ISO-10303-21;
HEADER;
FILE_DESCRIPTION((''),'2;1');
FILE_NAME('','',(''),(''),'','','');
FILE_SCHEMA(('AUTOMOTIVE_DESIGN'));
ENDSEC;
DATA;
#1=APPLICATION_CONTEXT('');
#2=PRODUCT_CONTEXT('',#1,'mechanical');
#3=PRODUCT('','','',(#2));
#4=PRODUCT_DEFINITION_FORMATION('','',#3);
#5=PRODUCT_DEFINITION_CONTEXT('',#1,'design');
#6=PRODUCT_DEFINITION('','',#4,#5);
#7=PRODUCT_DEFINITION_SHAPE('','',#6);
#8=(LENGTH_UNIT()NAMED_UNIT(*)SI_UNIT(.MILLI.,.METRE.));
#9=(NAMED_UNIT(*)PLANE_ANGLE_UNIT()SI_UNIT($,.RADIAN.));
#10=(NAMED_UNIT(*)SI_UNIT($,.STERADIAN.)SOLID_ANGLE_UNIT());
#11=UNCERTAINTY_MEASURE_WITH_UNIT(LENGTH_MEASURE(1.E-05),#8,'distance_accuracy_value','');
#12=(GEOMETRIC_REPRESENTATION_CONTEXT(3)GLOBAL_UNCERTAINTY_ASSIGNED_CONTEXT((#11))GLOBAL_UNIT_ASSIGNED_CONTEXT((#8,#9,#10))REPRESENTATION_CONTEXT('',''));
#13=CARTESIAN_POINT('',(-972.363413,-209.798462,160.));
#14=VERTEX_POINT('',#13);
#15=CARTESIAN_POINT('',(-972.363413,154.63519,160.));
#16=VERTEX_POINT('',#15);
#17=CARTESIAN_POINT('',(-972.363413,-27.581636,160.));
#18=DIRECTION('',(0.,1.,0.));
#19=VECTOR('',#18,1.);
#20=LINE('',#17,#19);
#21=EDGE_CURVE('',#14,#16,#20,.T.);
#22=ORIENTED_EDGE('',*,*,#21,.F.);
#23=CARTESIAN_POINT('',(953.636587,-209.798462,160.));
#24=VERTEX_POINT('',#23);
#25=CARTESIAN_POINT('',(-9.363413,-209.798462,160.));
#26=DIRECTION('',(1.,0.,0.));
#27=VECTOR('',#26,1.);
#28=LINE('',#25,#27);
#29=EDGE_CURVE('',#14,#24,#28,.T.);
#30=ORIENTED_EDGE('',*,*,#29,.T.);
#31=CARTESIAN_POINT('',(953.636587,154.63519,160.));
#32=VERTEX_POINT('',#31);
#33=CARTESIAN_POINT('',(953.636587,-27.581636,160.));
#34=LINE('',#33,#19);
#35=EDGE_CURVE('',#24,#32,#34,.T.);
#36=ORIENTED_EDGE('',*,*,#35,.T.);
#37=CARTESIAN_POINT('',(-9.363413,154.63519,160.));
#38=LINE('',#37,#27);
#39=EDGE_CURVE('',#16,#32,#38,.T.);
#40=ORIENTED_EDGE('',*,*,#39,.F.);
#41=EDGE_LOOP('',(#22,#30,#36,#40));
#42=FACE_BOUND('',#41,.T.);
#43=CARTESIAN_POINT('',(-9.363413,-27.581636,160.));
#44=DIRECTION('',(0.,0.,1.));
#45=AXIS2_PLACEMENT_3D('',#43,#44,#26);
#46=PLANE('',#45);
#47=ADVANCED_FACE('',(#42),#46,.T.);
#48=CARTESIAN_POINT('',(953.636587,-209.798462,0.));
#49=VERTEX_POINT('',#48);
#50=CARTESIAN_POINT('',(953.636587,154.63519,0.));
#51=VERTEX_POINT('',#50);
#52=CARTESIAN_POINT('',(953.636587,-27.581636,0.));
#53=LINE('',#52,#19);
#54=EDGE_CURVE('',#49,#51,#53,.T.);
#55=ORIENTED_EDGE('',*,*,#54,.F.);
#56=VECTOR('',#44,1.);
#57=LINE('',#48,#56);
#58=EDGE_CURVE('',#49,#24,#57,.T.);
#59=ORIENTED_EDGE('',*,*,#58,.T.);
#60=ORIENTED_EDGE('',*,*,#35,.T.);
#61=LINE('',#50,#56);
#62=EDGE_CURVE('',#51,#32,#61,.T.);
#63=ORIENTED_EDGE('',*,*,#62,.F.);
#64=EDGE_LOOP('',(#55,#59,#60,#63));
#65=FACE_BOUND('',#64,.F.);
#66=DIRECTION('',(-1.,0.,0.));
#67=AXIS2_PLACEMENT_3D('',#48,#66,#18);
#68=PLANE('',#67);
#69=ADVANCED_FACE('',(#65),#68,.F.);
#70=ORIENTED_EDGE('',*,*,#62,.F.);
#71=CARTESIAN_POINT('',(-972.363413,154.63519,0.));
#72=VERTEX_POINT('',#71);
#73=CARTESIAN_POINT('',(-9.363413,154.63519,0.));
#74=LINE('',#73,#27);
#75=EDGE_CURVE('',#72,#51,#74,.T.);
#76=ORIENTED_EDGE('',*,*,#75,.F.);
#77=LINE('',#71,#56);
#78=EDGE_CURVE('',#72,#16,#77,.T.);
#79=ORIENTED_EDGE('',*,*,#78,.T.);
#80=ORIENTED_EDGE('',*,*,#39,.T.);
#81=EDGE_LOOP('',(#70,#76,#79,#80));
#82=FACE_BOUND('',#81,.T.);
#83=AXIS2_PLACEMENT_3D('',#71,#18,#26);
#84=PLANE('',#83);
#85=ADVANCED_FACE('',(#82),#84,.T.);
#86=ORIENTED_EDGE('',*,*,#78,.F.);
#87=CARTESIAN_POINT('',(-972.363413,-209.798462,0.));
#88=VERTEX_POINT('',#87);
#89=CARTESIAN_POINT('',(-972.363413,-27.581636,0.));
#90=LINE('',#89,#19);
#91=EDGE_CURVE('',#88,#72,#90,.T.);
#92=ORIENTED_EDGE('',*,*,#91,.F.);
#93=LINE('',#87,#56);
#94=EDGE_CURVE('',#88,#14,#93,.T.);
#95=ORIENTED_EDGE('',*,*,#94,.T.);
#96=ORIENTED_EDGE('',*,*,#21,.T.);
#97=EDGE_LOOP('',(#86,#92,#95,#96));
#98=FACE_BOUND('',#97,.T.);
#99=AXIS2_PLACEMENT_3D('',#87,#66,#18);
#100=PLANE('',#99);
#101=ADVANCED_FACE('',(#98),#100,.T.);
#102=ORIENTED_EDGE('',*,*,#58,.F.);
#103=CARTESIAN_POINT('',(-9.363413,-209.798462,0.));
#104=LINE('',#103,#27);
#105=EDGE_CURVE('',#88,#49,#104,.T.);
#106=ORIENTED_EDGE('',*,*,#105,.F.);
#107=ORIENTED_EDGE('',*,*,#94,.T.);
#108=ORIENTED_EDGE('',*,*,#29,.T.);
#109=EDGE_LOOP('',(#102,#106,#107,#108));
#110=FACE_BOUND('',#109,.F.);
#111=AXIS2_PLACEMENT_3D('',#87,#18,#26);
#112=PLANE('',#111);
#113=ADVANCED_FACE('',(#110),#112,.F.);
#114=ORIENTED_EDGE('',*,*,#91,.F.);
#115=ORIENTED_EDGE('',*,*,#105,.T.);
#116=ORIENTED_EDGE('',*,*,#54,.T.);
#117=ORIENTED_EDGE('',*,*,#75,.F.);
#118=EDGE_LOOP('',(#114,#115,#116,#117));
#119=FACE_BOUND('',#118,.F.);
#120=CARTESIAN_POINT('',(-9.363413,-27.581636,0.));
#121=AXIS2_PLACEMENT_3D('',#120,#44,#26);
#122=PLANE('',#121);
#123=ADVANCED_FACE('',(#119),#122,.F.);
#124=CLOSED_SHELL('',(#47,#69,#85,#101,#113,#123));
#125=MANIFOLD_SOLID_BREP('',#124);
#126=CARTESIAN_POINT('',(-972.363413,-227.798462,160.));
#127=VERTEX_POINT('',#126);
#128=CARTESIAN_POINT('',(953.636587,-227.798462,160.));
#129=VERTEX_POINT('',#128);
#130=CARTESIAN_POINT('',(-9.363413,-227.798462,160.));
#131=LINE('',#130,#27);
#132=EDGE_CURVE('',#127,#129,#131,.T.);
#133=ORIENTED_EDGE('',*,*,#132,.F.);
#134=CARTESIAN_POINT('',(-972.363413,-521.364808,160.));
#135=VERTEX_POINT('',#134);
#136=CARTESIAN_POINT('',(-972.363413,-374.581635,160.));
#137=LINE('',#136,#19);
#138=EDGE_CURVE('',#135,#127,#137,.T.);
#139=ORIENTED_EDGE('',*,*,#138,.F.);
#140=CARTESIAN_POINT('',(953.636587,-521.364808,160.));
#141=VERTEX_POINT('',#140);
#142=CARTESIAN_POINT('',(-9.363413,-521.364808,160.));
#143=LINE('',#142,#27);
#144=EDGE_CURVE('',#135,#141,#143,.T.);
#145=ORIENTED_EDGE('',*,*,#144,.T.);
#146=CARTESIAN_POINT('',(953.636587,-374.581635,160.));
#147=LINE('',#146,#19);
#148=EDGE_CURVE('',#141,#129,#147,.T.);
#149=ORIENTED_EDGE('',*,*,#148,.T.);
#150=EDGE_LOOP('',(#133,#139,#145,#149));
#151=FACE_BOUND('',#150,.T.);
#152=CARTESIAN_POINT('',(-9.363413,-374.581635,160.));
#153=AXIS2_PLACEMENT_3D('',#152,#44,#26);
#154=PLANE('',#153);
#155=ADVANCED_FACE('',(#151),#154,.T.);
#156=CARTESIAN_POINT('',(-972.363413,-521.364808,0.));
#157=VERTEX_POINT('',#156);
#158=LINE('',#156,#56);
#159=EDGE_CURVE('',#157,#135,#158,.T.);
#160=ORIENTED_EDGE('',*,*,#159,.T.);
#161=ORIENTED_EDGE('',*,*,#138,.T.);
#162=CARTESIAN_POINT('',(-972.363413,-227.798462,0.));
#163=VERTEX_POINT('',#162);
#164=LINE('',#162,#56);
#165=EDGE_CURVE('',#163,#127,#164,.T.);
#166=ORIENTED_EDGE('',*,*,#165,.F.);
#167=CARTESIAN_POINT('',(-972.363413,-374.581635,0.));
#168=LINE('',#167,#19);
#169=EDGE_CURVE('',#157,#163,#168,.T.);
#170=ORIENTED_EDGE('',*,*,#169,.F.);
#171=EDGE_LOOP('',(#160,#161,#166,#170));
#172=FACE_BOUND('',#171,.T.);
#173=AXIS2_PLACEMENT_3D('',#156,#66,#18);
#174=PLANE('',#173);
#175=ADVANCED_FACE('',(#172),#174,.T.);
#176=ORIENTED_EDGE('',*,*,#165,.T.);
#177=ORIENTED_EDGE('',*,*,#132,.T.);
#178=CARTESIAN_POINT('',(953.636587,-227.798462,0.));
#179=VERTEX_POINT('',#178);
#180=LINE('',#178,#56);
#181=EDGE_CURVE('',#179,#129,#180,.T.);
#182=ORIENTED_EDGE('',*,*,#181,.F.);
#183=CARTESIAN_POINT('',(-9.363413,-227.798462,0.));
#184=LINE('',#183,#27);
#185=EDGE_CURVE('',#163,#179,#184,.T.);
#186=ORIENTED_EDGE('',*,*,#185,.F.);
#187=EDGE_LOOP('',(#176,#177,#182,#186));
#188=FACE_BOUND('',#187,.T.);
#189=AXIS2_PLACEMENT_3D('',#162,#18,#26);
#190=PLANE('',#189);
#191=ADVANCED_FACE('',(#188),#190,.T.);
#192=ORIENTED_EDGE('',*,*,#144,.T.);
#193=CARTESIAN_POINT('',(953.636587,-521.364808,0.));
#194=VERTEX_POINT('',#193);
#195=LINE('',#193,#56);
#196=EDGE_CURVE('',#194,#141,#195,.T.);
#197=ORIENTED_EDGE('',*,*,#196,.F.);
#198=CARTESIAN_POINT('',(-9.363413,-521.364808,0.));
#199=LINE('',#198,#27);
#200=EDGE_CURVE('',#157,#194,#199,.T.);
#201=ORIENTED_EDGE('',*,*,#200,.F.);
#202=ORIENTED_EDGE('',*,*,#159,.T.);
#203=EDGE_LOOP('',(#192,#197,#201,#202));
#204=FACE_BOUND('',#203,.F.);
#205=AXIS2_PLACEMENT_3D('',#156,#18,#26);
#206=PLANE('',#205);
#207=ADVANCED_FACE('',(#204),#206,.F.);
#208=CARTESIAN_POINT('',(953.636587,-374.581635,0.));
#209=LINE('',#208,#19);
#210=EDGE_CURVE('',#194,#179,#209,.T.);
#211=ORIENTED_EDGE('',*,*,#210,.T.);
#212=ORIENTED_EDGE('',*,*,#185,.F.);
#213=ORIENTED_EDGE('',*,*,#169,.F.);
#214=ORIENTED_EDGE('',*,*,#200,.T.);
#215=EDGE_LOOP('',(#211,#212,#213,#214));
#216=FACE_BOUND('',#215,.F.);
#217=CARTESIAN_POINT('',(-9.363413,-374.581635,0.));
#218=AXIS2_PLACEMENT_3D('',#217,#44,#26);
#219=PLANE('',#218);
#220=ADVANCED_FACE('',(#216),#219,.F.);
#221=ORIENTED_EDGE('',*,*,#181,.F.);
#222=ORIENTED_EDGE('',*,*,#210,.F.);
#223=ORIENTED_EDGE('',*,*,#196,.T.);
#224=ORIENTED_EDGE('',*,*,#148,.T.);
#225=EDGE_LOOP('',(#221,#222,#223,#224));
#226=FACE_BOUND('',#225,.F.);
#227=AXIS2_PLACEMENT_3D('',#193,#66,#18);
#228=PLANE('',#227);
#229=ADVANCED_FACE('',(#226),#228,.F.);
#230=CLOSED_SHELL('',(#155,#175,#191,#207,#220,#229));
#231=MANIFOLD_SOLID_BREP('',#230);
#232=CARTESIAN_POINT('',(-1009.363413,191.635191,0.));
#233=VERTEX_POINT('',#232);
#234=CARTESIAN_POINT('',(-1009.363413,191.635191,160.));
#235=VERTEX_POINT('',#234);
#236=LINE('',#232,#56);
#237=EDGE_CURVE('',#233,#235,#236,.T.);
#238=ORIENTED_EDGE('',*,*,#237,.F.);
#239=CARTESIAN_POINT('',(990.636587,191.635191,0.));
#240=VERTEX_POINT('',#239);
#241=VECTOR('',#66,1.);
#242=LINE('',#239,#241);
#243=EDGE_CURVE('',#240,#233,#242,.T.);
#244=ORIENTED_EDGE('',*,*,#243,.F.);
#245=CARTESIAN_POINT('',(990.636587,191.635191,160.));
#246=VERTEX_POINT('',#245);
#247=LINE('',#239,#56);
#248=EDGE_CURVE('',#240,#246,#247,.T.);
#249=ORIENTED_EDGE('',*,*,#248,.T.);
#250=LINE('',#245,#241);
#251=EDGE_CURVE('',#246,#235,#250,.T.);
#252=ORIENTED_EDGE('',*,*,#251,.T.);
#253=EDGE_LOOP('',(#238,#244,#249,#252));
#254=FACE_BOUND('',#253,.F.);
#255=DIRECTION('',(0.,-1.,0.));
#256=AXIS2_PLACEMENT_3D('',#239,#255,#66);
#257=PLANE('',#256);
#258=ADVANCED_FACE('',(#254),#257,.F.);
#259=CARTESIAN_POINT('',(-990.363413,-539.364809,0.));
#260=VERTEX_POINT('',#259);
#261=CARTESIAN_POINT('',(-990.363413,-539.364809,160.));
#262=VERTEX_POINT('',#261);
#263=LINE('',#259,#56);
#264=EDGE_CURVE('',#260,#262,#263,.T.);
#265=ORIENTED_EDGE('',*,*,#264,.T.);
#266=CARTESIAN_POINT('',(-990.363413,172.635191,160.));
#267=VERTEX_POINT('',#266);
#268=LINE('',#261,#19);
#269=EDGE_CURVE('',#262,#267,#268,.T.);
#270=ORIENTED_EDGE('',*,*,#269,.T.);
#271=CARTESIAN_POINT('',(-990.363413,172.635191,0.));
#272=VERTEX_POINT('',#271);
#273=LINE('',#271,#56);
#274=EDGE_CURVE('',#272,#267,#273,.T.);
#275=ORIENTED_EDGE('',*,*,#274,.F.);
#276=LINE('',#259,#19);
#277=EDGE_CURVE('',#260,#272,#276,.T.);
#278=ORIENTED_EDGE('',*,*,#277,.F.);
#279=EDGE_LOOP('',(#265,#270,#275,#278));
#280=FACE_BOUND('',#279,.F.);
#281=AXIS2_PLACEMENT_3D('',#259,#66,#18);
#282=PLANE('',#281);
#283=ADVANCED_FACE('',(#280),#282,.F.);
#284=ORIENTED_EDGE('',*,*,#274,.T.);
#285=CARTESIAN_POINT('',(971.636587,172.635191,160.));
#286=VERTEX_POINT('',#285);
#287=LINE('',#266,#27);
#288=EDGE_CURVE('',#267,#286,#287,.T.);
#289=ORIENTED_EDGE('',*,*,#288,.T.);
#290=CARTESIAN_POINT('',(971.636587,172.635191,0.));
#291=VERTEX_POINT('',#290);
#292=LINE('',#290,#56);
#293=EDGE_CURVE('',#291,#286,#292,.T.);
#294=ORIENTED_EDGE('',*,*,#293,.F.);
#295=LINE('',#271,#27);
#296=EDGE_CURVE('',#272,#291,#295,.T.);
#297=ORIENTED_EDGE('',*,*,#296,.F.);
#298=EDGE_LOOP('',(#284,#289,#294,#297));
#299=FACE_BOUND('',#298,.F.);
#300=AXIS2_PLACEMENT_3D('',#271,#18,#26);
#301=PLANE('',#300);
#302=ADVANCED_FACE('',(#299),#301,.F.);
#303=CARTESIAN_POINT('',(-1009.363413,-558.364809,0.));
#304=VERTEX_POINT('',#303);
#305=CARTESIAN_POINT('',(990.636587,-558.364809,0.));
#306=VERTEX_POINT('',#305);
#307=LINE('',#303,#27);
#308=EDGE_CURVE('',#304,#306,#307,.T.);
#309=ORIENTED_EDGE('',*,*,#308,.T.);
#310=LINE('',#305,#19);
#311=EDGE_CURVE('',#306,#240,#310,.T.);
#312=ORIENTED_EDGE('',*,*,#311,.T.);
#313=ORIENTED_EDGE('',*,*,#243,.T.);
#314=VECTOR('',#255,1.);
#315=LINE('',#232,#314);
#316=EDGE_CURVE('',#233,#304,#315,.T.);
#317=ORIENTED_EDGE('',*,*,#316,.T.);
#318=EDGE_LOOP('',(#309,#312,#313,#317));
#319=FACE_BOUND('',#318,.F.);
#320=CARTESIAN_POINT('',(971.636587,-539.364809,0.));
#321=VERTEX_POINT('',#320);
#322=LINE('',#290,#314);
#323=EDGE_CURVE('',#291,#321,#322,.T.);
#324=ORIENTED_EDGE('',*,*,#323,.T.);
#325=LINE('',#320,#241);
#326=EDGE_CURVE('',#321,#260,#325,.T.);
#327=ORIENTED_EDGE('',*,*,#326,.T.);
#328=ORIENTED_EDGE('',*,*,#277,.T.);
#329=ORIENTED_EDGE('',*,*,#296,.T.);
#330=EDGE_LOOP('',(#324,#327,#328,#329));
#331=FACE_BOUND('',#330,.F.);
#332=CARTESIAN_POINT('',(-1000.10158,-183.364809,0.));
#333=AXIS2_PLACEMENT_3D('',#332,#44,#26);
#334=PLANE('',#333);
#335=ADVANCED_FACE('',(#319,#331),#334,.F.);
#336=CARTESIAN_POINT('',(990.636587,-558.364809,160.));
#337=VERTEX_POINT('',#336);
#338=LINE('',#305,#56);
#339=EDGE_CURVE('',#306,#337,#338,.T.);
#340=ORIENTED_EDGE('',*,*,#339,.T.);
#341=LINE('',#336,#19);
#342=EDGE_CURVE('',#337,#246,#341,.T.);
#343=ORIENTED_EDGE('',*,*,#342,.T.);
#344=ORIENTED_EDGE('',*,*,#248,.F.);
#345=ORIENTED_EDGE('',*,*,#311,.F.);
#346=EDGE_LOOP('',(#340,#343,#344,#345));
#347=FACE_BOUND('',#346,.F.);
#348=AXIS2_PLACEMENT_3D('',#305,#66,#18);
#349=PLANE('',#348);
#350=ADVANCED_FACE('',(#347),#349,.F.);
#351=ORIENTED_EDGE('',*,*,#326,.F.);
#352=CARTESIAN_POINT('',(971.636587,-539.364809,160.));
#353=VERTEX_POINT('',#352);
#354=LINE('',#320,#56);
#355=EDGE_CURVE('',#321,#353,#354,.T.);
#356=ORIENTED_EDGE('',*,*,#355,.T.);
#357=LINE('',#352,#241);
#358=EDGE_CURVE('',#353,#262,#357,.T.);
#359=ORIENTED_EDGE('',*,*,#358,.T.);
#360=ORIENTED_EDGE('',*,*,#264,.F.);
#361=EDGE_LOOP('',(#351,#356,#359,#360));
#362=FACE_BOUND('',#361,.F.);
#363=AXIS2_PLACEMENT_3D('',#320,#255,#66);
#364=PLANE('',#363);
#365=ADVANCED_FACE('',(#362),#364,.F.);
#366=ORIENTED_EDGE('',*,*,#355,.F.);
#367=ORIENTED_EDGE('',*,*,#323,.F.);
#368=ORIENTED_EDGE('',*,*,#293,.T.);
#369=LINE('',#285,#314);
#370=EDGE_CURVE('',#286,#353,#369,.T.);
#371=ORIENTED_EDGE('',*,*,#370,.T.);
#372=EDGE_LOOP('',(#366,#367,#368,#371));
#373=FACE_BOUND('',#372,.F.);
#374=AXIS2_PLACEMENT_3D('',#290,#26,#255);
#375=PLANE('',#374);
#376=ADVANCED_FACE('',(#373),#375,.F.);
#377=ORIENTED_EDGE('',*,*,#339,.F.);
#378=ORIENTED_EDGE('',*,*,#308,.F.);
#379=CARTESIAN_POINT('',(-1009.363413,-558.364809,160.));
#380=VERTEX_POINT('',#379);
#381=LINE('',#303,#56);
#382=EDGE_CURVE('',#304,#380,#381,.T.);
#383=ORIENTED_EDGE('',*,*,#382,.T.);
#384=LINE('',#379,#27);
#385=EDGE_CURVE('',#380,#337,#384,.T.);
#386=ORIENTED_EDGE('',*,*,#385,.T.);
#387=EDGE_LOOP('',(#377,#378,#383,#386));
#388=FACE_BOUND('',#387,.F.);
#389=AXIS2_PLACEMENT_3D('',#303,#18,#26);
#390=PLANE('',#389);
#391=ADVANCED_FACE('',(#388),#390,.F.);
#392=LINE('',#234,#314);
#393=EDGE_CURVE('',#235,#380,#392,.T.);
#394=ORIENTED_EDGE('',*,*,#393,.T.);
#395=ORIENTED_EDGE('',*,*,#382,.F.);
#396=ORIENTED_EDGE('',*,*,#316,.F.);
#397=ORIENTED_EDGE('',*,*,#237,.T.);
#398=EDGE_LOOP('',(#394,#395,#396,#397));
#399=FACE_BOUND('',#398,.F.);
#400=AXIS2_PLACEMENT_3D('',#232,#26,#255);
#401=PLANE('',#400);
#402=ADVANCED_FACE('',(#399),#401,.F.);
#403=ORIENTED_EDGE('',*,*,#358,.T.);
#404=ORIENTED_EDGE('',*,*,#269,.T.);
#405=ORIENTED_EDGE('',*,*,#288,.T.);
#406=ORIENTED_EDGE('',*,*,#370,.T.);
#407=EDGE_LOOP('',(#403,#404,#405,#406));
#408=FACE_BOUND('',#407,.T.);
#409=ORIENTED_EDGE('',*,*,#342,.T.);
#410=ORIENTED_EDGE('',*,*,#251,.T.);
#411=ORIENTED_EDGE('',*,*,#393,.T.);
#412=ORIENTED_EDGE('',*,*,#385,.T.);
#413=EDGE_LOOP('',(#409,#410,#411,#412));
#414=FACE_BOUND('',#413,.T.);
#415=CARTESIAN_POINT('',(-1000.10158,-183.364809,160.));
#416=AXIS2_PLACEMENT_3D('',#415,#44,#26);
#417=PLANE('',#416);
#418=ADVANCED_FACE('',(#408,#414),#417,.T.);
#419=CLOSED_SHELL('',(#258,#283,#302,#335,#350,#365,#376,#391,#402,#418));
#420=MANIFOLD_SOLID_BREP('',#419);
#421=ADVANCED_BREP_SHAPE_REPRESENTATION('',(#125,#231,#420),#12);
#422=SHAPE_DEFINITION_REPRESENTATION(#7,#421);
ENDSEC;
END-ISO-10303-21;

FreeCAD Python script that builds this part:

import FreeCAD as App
import Part
import Sketcher


def add_polygon(sketch, points):
    """Adds a closed chain of lines whose ends are joined by coincident constraints."""
    first, n = sketch.GeometryCount, len(points)
    for a, b in zip(points, points[1:] + points[:1]):
        sketch.addGeometry(Part.LineSegment(App.Vector(*a, 0), App.Vector(*b, 0)), False)
    for i in range(n):
        sketch.addConstraint(Sketcher.Constraint("Coincident", first + i, 2, first + (i + 1) % n, 1))

doc = App.newDocument("Part")
params = doc.addObject("Spreadsheet::Sheet", "Params")
for row, (alias, value) in enumerate([
    ("sketch1_width", "1926 mm"),
    ("sketch1_width2", "2000 mm"),
    ("sketch1_width3", "1962 mm"),
    ("pad1_length", "160 mm"),
    ("sketch2_width", "2000 mm"),
    ("sketch2_width2", "1962 mm"),
    ("sketch2_height", "750 mm"),
    ("sketch2_height2", "712 mm"),
    ("pad2_length", "160 mm"),
], start=1):
    params.set(f"A{row}", alias)
    params.set(f"B{row}", "=" + value)
    params.setAlias(f"B{row}", alias)

body = doc.addObject("PartDesign::Body", "Body")
body.AllowCompound = True

sketch1 = doc.addObject("Sketcher::SketchObject", "Sketch")
body.addObject(sketch1)
sketch1.AttachmentSupport = (doc.XY_Plane, [""])
sketch1.MapMode = "FlatFace"
add_polygon(sketch1, [(-972, 155), (-972, -210), (954, -210), (954, 155)])
add_polygon(sketch1, [(-972, -228), (-972, -521), (954, -521), (954, -228)])
add_polygon(sketch1, [(991, 192), (-1009, 192), (-990, 173), (972, 173)])
sketch1.addConstraint([
    Sketcher.Constraint("Vertical", 0),
    Sketcher.Constraint("Horizontal", 1),
    Sketcher.Constraint("Vertical", 2),
    Sketcher.Constraint("Horizontal", 3),
    Sketcher.Constraint("Vertical", 4),
    Sketcher.Constraint("Horizontal", 5),
    Sketcher.Constraint("Vertical", 6),
    Sketcher.Constraint("Horizontal", 7),
    Sketcher.Constraint("Horizontal", 8),
    Sketcher.Constraint("Horizontal", 10),
    Sketcher.Constraint("Perpendicular", 9, 11),
    Sketcher.Constraint("Vertical", 3, 2, 4, 2),
    Sketcher.Constraint("Vertical", 2, 2, 5, 2),
    Sketcher.Constraint("Equal", 9, 11),
    Sketcher.Constraint("DistanceX", 1, 1, 1, 2, 1926.0),
    Sketcher.Constraint("DistanceX", 8, 2, 8, 1, 2000.0),
    Sketcher.Constraint("DistanceX", 10, 1, 10, 2, 1962.0),
    Sketcher.Constraint("DistanceY", 4, 2, 3, 2, 675.999999),
    Sketcher.Constraint("DistanceY", 6, 2, 1, 2, 17.999999),
    Sketcher.Constraint("DistanceX", 8, 2, 3, 2, 37.0),
    Sketcher.Constraint("DistanceY", 3, 2, 8, 2, 37.0),
    Sketcher.Constraint("DistanceY", 0, 2, 0, 1, 364.433653),
    Sketcher.Constraint("DistanceY", -1, 1, 2, 2, 154.63519),
    Sketcher.Constraint("DistanceX", 0, 2, -1, 1, 972.363413),
])
sketch1.setExpression("Constraints[26]", "Params.sketch1_width")
sketch1.setExpression("Constraints[27]", "Params.sketch1_width2")
sketch1.setExpression("Constraints[28]", "Params.sketch1_width3")
pad1 = doc.addObject("PartDesign::Pad", "Pad")
body.addObject(pad1)
pad1.Profile = sketch1
pad1.setExpression("Length", "Params.pad1_length")

sketch2 = doc.addObject("Sketcher::SketchObject", "Sketch001")
body.addObject(sketch2)
sketch2.AttachmentSupport = (doc.XY_Plane, [""])
sketch2.MapMode = "FlatFace"
add_polygon(sketch2, [(-1009, 192), (-1009, -558), (991, -558), (991, 192)])
add_polygon(sketch2, [(-990, -539), (-990, 173), (972, 173), (972, -539)])
sketch2.addConstraint([
    Sketcher.Constraint("Vertical", 0),
    Sketcher.Constraint("Horizontal", 1),
    Sketcher.Constraint("Vertical", 2),
    Sketcher.Constraint("Horizontal", 3),
    Sketcher.Constraint("Vertical", 4),
    Sketcher.Constraint("Horizontal", 5),
    Sketcher.Constraint("Vertical", 6),
    Sketcher.Constraint("Horizontal", 7),
    Sketcher.Constraint("DistanceX", 1, 1, 1, 2, 2000.0),
    Sketcher.Constraint("DistanceX", 5, 1, 5, 2, 1962.0),
    Sketcher.Constraint("DistanceY", 0, 2, 0, 1, 750.0),
    Sketcher.Constraint("DistanceY", 4, 1, 4, 2, 712.0),
    Sketcher.Constraint("DistanceX", 3, 2, 4, 2, 19.0),
    Sketcher.Constraint("DistanceY", 4, 2, 3, 2, 19.0),
    Sketcher.Constraint("DistanceY", 0, 2, -1, 1, 558.364809),
    Sketcher.Constraint("DistanceX", 0, 2, -1, 1, 1009.363413),
])
sketch2.setExpression("Constraints[16]", "Params.sketch2_width")
sketch2.setExpression("Constraints[17]", "Params.sketch2_width2")
sketch2.setExpression("Constraints[18]", "Params.sketch2_height")
sketch2.setExpression("Constraints[19]", "Params.sketch2_height2")
pad2 = doc.addObject("PartDesign::Pad", "Pad001")
body.addObject(pad2)
pad2.Profile = sketch2
pad2.setExpression("Length", "Params.pad2_length")

doc.recompute()
